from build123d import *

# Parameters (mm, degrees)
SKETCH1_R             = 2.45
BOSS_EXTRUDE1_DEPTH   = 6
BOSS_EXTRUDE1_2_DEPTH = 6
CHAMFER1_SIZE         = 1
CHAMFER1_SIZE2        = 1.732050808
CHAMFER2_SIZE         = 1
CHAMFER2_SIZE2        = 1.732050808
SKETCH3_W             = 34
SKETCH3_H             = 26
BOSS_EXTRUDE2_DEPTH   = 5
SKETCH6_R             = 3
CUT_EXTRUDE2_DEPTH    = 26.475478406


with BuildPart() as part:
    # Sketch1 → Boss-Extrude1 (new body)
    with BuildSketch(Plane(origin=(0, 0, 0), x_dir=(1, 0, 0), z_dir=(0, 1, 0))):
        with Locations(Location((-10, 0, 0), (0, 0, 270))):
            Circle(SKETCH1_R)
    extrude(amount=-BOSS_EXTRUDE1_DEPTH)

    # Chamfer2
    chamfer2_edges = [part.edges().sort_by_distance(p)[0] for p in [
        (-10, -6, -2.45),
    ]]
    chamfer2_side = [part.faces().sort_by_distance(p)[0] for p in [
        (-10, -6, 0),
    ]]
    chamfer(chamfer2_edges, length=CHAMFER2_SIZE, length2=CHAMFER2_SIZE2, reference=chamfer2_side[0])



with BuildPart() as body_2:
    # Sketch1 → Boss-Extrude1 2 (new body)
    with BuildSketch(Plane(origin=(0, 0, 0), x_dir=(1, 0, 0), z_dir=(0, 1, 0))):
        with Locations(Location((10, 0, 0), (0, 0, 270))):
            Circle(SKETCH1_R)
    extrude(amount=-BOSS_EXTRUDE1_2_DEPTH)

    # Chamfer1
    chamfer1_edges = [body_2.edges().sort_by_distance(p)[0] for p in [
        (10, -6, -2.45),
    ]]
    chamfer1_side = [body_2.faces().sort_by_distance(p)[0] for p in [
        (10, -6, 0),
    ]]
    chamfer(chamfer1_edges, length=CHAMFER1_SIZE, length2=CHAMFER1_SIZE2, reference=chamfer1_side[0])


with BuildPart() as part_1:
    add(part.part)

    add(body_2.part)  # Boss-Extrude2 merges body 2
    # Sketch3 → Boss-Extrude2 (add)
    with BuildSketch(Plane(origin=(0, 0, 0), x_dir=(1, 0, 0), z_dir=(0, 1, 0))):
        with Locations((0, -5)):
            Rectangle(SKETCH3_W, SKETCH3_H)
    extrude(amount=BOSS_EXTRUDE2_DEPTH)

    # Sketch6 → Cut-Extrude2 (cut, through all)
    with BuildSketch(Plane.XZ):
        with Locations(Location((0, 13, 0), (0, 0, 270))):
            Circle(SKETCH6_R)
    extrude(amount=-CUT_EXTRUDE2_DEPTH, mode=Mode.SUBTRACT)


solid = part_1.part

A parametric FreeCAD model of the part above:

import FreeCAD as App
import Part
import Sketcher

V = App.Vector


def edges_at(feature, points):
    """Names of the edges that pass closest to the given points."""
    edges = feature.Shape.Edges
    near = lambda p: min(range(len(edges)), key=lambda i: edges[i].distToShape(Part.Vertex(*p))[0])
    return sorted({f"Edge{near(p) + 1}" for p in points})


def add_polygon(sketch, points):
    """Adds a closed chain of lines whose ends are joined by coincident constraints."""
    first, n = sketch.GeometryCount, len(points)
    for a, b in zip(points, points[1:] + points[:1]):
        sketch.addGeometry(Part.LineSegment(App.Vector(*a, 0), App.Vector(*b, 0)), False)
    for i in range(n):
        sketch.addConstraint(Sketcher.Constraint("Coincident", first + i, 2, first + (i + 1) % n, 1))

doc = App.newDocument("Part")
body = doc.addObject("PartDesign::Body", "Body")

# Sketch on XZ plane
sketch1 = body.newObject("Sketcher::SketchObject", "Sketch")
sketch1.AttachmentSupport = (doc.getObject("XZ_Plane"), [""])
sketch1.MapMode = "FlatFace"
sketch1.addGeometry(Part.Circle(V(-10, 0, 0), V(0, 0, 1), 2.45), False)
sketch1.addConstraint([
    Sketcher.Constraint("PointOnObject", 0, 3, -1),
    Sketcher.Constraint("Diameter", 0, 4.9),
    Sketcher.Constraint("DistanceX", 0, 3, -1, 1, 10.0),
])
pad1 = body.newObject("PartDesign::Pad", "Pad")
pad1.Profile = sketch1
pad1.Length = 6
doc.recompute()

chamfer = body.newObject("PartDesign::Chamfer", "Chamfer")
chamfer.Base = (pad1, edges_at(pad1, [(-10, -6, -2.45)]))
chamfer.ChamferType = "Two distances"
chamfer.Size = 1
chamfer.Size2 = 1.732051
chamfer.FlipDirection = True
body2 = doc.addObject("PartDesign::Body", "Body001")

# Sketch on XZ plane
sketch2 = body2.newObject("Sketcher::SketchObject", "Sketch001")
sketch2.AttachmentSupport = (doc.getObject("XZ_Plane001"), [""])
sketch2.MapMode = "FlatFace"
sketch2.addGeometry(Part.Circle(V(10, 0, 0), V(0, 0, 1), 2.45), False)
sketch2.addConstraint([
    Sketcher.Constraint("PointOnObject", 0, 3, -1),
    Sketcher.Constraint("Diameter", 0, 4.9),
    Sketcher.Constraint("DistanceX", -1, 1, 0, 3, 10.0),
])
pad2 = body2.newObject("PartDesign::Pad", "Pad001")
pad2.Profile = sketch2
pad2.Length = 6
doc.recompute()

chamfer2 = body2.newObject("PartDesign::Chamfer", "Chamfer001")
chamfer2.Base = (pad2, edges_at(pad2, [(10, -6, -2.45)]))
chamfer2.ChamferType = "Two distances"
chamfer2.Size = 1
chamfer2.Size2 = 1.732051
chamfer2.FlipDirection = True
body.AllowCompound = True
doc.recompute()

boolean = body.newObject("PartDesign::Boolean", "Boolean")
boolean.Type = "Fuse"
boolean.addObjects([body2])

# Sketch on XZ plane
sketch3 = body.newObject("Sketcher::SketchObject", "Sketch002")
sketch3.AttachmentSupport = (doc.getObject("XZ_Plane"), [""])
sketch3.MapMode = "FlatFace"
add_polygon(sketch3, [(-17, -8), (-17, 18), (17, 18), (17, -8)])  # lines 0-3
sketch3.addConstraint([
    Sketcher.Constraint("Vertical", 0),
    Sketcher.Constraint("Horizontal", 1),
    Sketcher.Constraint("Vertical", 2),
    Sketcher.Constraint("Horizontal", 3),
    Sketcher.Constraint("DistanceX", 1, 1, 1, 2, 34.0),
    Sketcher.Constraint("DistanceY", 0, 1, 0, 2, 26.0),
    Sketcher.Constraint("DistanceX", 0, 2, -1, 1, 17.0),
    Sketcher.Constraint("DistanceY", -1, 1, 0, 2, 18.0),
])
pad3 = body.newObject("PartDesign::Pad", "Pad002")
pad3.Profile = sketch3
pad3.Length = 5
pad3.Reversed = True

# Sketch on XZ plane
sketch4 = body.newObject("Sketcher::SketchObject", "Sketch003")
sketch4.AttachmentSupport = (doc.getObject("XZ_Plane"), [""])
sketch4.MapMode = "FlatFace"
sketch4.addGeometry(Part.Circle(V(0, 13, 0), V(0, 0, 1), 3), False)
sketch4.addConstraint([
    Sketcher.Constraint("PointOnObject", 0, 3, -2),
    Sketcher.Constraint("Diameter", 0, 6.0),
    Sketcher.Constraint("DistanceY", -1, 1, 0, 3, 13.0),
])
pocket1 = body.newObject("PartDesign::Pocket", "Pocket")
pocket1.Profile = sketch4
pocket1.Type = "ThroughAll"

doc.recompute()
